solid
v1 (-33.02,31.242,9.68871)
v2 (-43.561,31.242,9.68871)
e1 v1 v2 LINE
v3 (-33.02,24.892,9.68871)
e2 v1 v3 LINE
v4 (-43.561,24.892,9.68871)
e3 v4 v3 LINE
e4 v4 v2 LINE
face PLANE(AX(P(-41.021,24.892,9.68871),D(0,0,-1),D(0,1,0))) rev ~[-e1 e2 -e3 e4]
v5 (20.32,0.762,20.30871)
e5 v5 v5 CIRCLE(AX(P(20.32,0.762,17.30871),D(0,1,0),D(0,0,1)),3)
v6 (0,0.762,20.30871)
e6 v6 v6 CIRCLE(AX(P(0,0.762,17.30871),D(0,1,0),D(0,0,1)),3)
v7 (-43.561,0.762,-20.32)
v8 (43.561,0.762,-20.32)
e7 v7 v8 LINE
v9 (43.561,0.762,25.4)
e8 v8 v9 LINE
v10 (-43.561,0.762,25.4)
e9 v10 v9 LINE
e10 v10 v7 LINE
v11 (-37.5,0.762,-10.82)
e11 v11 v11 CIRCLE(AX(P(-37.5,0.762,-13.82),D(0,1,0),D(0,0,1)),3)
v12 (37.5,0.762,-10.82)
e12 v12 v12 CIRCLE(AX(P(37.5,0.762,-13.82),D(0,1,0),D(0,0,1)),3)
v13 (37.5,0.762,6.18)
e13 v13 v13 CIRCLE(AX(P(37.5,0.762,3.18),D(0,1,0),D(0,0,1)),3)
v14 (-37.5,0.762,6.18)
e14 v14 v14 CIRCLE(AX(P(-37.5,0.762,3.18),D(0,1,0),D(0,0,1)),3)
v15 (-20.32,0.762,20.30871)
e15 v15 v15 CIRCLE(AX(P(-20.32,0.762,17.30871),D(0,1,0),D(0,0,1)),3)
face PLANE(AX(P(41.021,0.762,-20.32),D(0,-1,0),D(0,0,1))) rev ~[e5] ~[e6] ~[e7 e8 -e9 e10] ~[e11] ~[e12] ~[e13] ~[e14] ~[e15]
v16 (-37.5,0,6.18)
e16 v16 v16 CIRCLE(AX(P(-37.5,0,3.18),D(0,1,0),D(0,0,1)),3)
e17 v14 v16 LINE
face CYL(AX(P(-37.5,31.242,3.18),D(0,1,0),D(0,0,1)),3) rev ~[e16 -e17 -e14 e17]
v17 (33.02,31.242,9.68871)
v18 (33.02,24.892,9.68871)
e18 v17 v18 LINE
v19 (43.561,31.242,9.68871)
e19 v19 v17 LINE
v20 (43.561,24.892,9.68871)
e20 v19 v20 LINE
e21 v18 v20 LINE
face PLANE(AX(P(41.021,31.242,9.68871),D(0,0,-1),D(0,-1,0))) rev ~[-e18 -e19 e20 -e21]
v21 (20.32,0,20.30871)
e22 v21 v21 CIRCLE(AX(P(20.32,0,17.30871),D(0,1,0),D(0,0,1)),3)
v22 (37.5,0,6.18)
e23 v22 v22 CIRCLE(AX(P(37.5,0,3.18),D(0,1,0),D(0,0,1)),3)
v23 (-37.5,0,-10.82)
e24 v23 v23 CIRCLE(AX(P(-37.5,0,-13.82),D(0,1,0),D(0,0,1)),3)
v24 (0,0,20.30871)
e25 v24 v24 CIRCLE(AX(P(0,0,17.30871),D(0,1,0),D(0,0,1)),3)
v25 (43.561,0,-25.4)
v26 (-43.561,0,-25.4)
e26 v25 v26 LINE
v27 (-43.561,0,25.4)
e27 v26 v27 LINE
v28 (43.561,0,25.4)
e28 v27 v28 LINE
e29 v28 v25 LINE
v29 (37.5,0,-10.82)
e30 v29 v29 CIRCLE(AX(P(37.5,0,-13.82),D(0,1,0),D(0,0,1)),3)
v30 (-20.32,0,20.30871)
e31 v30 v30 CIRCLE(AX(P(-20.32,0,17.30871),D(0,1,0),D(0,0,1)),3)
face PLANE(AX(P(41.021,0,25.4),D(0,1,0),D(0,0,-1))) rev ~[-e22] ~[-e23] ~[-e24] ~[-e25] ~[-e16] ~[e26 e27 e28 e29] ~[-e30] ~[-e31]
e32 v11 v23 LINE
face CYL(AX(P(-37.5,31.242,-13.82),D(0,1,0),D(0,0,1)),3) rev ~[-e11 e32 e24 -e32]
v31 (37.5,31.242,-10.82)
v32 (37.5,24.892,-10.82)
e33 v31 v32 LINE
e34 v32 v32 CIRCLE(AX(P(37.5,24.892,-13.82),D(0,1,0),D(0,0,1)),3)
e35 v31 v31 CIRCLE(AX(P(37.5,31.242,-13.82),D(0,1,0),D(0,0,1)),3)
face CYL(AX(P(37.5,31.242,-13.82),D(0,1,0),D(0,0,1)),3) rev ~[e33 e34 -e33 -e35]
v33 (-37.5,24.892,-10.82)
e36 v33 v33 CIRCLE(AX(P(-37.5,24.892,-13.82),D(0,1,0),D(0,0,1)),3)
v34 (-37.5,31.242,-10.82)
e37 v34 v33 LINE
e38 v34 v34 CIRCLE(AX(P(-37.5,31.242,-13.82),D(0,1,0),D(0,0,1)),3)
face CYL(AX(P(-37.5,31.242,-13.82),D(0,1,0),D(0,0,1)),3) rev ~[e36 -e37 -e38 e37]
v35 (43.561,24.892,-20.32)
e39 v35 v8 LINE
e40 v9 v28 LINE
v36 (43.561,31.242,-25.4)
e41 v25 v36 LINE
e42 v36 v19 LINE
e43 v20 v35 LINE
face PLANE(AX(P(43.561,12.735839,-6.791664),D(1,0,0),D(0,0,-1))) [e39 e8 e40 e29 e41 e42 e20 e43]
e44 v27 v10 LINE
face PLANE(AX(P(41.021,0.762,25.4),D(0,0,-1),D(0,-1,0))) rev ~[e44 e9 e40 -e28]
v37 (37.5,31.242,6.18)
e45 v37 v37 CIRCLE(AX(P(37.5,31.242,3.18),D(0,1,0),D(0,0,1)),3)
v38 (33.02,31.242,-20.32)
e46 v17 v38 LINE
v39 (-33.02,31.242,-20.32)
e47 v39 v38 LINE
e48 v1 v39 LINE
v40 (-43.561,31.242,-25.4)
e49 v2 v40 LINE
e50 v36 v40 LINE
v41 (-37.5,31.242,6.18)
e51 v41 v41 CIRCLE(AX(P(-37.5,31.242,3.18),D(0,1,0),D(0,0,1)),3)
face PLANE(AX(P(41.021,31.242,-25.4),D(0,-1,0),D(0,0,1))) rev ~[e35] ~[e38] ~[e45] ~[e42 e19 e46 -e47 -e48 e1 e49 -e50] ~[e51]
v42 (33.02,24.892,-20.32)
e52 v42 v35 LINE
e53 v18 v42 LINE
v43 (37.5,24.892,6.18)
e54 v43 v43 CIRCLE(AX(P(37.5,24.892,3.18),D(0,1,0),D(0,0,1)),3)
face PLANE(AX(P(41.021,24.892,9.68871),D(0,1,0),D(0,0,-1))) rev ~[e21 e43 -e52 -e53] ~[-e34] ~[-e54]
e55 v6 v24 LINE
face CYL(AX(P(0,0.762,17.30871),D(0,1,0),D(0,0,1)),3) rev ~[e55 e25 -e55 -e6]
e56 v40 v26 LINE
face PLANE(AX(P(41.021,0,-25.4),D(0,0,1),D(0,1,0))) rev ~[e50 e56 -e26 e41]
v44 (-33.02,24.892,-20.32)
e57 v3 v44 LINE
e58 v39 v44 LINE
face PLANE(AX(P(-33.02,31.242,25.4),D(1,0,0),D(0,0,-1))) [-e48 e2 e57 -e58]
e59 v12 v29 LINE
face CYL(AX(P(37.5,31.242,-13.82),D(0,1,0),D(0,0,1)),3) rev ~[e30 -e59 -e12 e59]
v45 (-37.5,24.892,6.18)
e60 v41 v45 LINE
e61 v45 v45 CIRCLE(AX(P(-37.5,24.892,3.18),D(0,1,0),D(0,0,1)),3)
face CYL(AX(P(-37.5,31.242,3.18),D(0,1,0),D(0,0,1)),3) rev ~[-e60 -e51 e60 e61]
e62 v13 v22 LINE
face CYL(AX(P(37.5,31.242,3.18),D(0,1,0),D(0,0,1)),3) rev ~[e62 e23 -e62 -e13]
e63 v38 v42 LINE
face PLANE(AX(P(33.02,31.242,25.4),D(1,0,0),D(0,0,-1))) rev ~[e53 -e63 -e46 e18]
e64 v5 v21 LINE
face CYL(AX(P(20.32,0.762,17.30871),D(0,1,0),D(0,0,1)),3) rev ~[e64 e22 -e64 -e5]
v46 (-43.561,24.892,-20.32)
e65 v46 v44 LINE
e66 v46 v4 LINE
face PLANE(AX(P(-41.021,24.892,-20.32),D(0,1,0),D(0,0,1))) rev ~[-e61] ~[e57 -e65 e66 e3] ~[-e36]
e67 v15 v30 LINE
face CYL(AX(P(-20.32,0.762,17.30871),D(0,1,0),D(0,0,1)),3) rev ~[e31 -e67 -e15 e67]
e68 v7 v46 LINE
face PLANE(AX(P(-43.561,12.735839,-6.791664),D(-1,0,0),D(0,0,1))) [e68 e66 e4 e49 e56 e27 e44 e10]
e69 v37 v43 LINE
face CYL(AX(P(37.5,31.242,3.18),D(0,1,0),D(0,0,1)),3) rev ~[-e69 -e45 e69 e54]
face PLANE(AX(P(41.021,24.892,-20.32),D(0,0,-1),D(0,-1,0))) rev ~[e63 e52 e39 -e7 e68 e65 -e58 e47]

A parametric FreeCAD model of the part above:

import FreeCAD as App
import Part
import Sketcher
Q = App.Units.Quantity


def add_polygon(sketch, points):
    """Adds a closed chain of lines whose ends are joined by coincident constraints."""
    first, n = sketch.GeometryCount, len(points)
    for a, b in zip(points, points[1:] + points[:1]):
        sketch.addGeometry(Part.LineSegment(App.Vector(*a, 0), App.Vector(*b, 0)), False)
    for i in range(n):
        sketch.addConstraint(Sketcher.Constraint("Coincident", first + i, 2, first + (i + 1) % n, 1))

doc = App.newDocument("Part")
body = doc.addObject("PartDesign::Body", "Body")

# Sketch on XZ plane
sketch1 = doc.addObject("Sketcher::SketchObject", "Sketch")
body.addObject(sketch1)
sketch1.AttachmentSupport = (doc.XZ_Plane, [""])
sketch1.MapMode = "FlatFace"
add_polygon(sketch1, [(-41, -25), (-41, 25), (41, 25), (41, -25)])  # lines 0-3
sketch1.addConstraint([
    Sketcher.Constraint("Vertical", 0),
    Sketcher.Constraint("Horizontal", 1),
    Sketcher.Constraint("Vertical", 2),
    Sketcher.Constraint("Horizontal", 3),
    Sketcher.Constraint("Symmetric", 0, 2, 2, 2, -1, 1),
    Sketcher.Constraint("DistanceY", 0, 1, 0, 2, Q("2 in")),
    Sketcher.Constraint("DistanceX", 1, 1, 1, 2, Q("3.23 in")),
])
pad1 = doc.addObject("PartDesign::Pad", "Pad")
body.addObject(pad1)
pad1.Profile = sketch1
pad1.Length = Q("1.23 in")
pad1.Reversed = True

# Sketch on XZ plane
sketch2 = doc.addObject("Sketcher::SketchObject", "Sketch001")
body.addObject(sketch2)
sketch2.AttachmentSupport = (doc.XZ_Plane, [""])
sketch2.MapMode = "FlatFace"
sketch2.AttachmentOffset = App.Placement(App.Vector(0, 0, -1.23 * 25.4), App.Rotation())
add_polygon(sketch2, [(-33, -20), (-33, 25), (33, 25), (33, -20)])  # lines 0-3
sketch2.addConstraint([
    Sketcher.Constraint("Vertical", 0),
    Sketcher.Constraint("Horizontal", 1),
    Sketcher.Constraint("Vertical", 2),
    Sketcher.Constraint("Horizontal", 3),
    Sketcher.Constraint("DistanceX", 1, 1, 1, 2, Q("2.6 in")),
    Sketcher.Constraint("DistanceY", 0, 1, 0, 2, Q("1.8 in")),
    Sketcher.Constraint("DistanceY", -1, 1, 0, 2, Q("1 in")),
    Sketcher.Constraint("DistanceX", 0, 2, -1, 1, Q("1.3 in")),
])
pocket1 = doc.addObject("PartDesign::Pocket", "Pocket")
body.addObject(pocket1)
pocket1.Profile = sketch2
pocket1.Length = Q("1.2 in")
pocket1.Reversed = True

# Sketch on XZ plane
sketch3 = doc.addObject("Sketcher::SketchObject", "Sketch002")
body.addObject(sketch3)
sketch3.AttachmentSupport = (doc.XZ_Plane, [""])
sketch3.MapMode = "FlatFace"
sketch3.AttachmentOffset = App.Placement(App.Vector(0, 0, -1.23 * 25.4), App.Rotation())
sketch3.addGeometry([
    Part.Circle(App.Vector(-37.5, -13.8, 0), App.Vector(0, 0, 1), 3),
    Part.Circle(App.Vector(-37.5, 3.2, 0), App.Vector(0, 0, 1), 3),
    Part.Circle(App.Vector(37.5, -13.8, 0), App.Vector(0, 0, 1), 3),
    Part.Circle(App.Vector(37.5, 3.2, 0), App.Vector(0, 0, 1), 3),
], False)
sketch3.addConstraint([
    Sketcher.Constraint("Equal", 0, 1),
    Sketcher.Constraint("Equal", 1, 2),
    Sketcher.Constraint("Equal", 2, 3),
    Sketcher.Constraint("Symmetric", 0, 3, 2, 3, -2),
    Sketcher.Constraint("Symmetric", 1, 3, 3, 3, -2),
    Sketcher.Constraint("Vertical", 0, 3, 1, 3),
    Sketcher.Constraint("Diameter", 0, 6.0),
    Sketcher.Constraint("DistanceX", 0, 3, -1, 1, 37.5),
    Sketcher.Constraint("DistanceY", 0, 3, -1, 1, 13.82),
    Sketcher.Constraint("DistanceY", -1, 1, 1, 3, 3.18),
])
pocket2 = doc.addObject("PartDesign::Pocket", "Pocket001")
body.addObject(pocket2)
pocket2.Profile = sketch3
pocket2.Type = "ThroughAll"
pocket2.Reversed = True

# Sketch on XZ plane
sketch4 = doc.addObject("Sketcher::SketchObject", "Sketch003")
body.addObject(sketch4)
sketch4.AttachmentSupport = (doc.XZ_Plane, [""])
sketch4.MapMode = "FlatFace"
sketch4.AttachmentOffset = App.Placement(App.Vector(0, 0, -1.23 * 25.4), App.Rotation())
add_polygon(sketch4, [(-41, 10), (-41, 25), (-33, 25), (-33, 10)])  # lines 0-3
add_polygon(sketch4, [(33, 10), (33, 25), (41, 25), (41, 10)])  # lines 4-7
sketch4.addConstraint([
    Sketcher.Constraint("Vertical", 0),
    Sketcher.Constraint("Horizontal", 1),
    Sketcher.Constraint("Vertical", 2),
    Sketcher.Constraint("Horizontal", 3),
    Sketcher.Constraint("Vertical", 4),
    Sketcher.Constraint("Horizontal", 5),
    Sketcher.Constraint("Vertical", 6),
    Sketcher.Constraint("Horizontal", 7),
    Sketcher.Constraint("Symmetric", 1, 2, 4, 2, -2),
    Sketcher.Constraint("Symmetric", 3, 2, 6, 2, -2),
    Sketcher.Constraint("DistanceY", -1, 1, 0, 2, Q("1 in")),
    Sketcher.Constraint("DistanceX", 1, 2, -1, 1, Q("1.3 in")),
    Sketcher.Constraint("DistanceX", 1, 1, 1, 2, Q("0.315 in")),
    Sketcher.Constraint("DistanceY", 0, 1, 0, 2, 15.71129),
])
pocket3 = doc.addObject("PartDesign::Pocket", "Pocket002")
body.addObject(pocket3)
pocket3.Profile = sketch4
pocket3.Length = Q("1.2 in")
pocket3.Reversed = True

# Sketch on XZ plane
sketch5 = doc.addObject("Sketcher::SketchObject", "Sketch004")
body.addObject(sketch5)
sketch5.AttachmentSupport = (doc.XZ_Plane, [""])
sketch5.MapMode = "FlatFace"
sketch5.AttachmentOffset = App.Placement(App.Vector(0, 0, -0.03 * 25.4), App.Rotation())
sketch5.addGeometry([
    Part.Circle(App.Vector(0, 17.3, 0), App.Vector(0, 0, 1), 3),
    Part.Circle(App.Vector(-20.3, 17.3, 0), App.Vector(0, 0, 1), 3),
    Part.Circle(App.Vector(20.3, 17.3, 0), App.Vector(0, 0, 1), 3),
], False)
sketch5.addConstraint([
    Sketcher.Constraint("Equal", 0, 1),
    Sketcher.Constraint("Equal", 1, 2),
    Sketcher.Constraint("Symmetric", 1, 3, 2, 3, -2),
    Sketcher.Constraint("PointOnObject", 0, 3, -2),
    Sketcher.Constraint("Horizontal", 0, 3, 1, 3),
    Sketcher.Constraint("DistanceX", 1, 3, -1, 1, Q("0.8 in")),
    Sketcher.Constraint("Diameter", 0, 6.0),
    Sketcher.Constraint("DistanceY", -1, 1, 0, 3, 17.30871),
])
pocket4 = doc.addObject("PartDesign::Pocket", "Pocket003")
body.addObject(pocket4)
pocket4.Profile = sketch5
pocket4.Type = "ThroughAll"
pocket4.Reversed = True

# Sketch on YZ plane
sketch6 = doc.addObject("Sketcher::SketchObject", "Sketch005")
body.addObject(sketch6)
sketch6.AttachmentSupport = (doc.YZ_Plane, [""])
sketch6.MapMode = "FlatFace"
sketch6.AttachmentOffset = App.Placement(App.Vector(0, 0, 1.615 * 25.4), App.Rotation())
add_polygon(sketch6, [(25, 10), (1, 10), (1, -20), (25, -20)])  # lines 0-3
sketch6.addConstraint([
    Sketcher.Constraint("Horizontal", 0),
    Sketcher.Constraint("Vertical", 1),
    Sketcher.Constraint("Horizontal", 2),
    Sketcher.Constraint("Vertical", 3),
    Sketcher.Constraint("DistanceX", 0, 2, 0, 1, Q("0.95 in")),
    Sketcher.Constraint("DistanceY", 1, 2, -1, 1, Q("0.8 in")),
    Sketcher.Constraint("DistanceX", -1, 1, 0, 2, Q("0.03 in")),
    Sketcher.Constraint("DistanceY", 1, 2, 1, 1, 30.00871),
])
pocket5 = doc.addObject("PartDesign::Pocket", "Pocket004")
body.addObject(pocket5)
pocket5.Profile = sketch6
pocket5.Type = "ThroughAll"

# Sketch on YZ plane
sketch7 = doc.addObject("Sketcher::SketchObject", "Sketch006")
body.addObject(sketch7)
sketch7.AttachmentSupport = (doc.YZ_Plane, [""])
sketch7.MapMode = "FlatFace"
sketch7.AttachmentOffset = App.Placement(App.Vector(0, 0, -1.615 * 25.4), App.Rotation())
add_polygon(sketch7, [(24.9, 9.7), (31.2, 9.7), (31.2, -25.4), (0, -25.4), (0, 25.4), (0.8, 25.4), (0.8, -20.3), (24.9, -20.3)])  # lines 0-7
sketch7.addConstraint([
    Sketcher.Constraint("Horizontal", 0),
    Sketcher.Constraint("Vertical", 1),
    Sketcher.Constraint("Horizontal", 2),
    Sketcher.Constraint("Vertical", 3),
    Sketcher.Constraint("Horizontal", 4),
    Sketcher.Constraint("Vertical", 5),
    Sketcher.Constraint("Horizontal", 6),
    Sketcher.Constraint("Vertical", 7),
    Sketcher.Constraint("Symmetric", 2, 2, 3, 2, -1, 1),
    Sketcher.Constraint("DistanceY", 3, 1, 3, 2, Q("2 in")),
    Sketcher.Constraint("DistanceY", 5, 2, 5, 1, Q("1.8 in")),
    Sketcher.Constraint("DistanceX", 0, 1, 0, 2, Q("0.25 in")),
    Sketcher.Constraint("DistanceX", 2, 2, 2, 1, Q("1.23 in")),
    Sketcher.Constraint("DistanceX", 4, 1, 4, 2, Q("0.03 in")),
    Sketcher.Constraint("DistanceY", 1, 2, 1, 1, 35.08871),
])
pad2 = doc.addObject("PartDesign::Pad", "Pad001")
body.addObject(pad2)
pad2.Profile = sketch7
pad2.Length = Q("0.1 in")
pad2.Reversed = True

# Sketch on YZ plane
sketch8 = doc.addObject("Sketcher::SketchObject", "Sketch007")
body.addObject(sketch8)
sketch8.AttachmentSupport = (doc.YZ_Plane, [""])
sketch8.MapMode = "FlatFace"
sketch8.AttachmentOffset = App.Placement(App.Vector(0, 0, 1.615 * 25.4), App.Rotation())
add_polygon(sketch8, [(31.2, 9.7), (24.9, 9.7), (24.9, -20.3), (0.8, -20.3), (0.8, 25.4), (0, 25.4), (0, -25.4), (31.2, -25.4)])  # lines 0-7
sketch8.addConstraint([
    Sketcher.Constraint("Horizontal", 0),
    Sketcher.Constraint("Vertical", 1),
    Sketcher.Constraint("Horizontal", 2),
    Sketcher.Constraint("Vertical", 3),
    Sketcher.Constraint("Horizontal", 4),
    Sketcher.Constraint("Vertical", 5),
    Sketcher.Constraint("Horizontal", 6),
    Sketcher.Constraint("Vertical", 7),
    Sketcher.Constraint("Symmetric", 4, 2, 5, 2, -1, 1),
    Sketcher.Constraint("DistanceY", 5, 2, 5, 1, Q("2 in")),
    Sketcher.Constraint("DistanceY", 3, 1, 3, 2, Q("1.8 in")),
    Sketcher.Constraint("DistanceX", 0, 2, 0, 1, Q("0.25 in")),
    Sketcher.Constraint("DistanceX", 2, 2, 2, 1, Q("0.95 in")),
    Sketcher.Constraint("DistanceX", 4, 2, 4, 1, Q("0.03 in")),
    Sketcher.Constraint("DistanceY", 1, 2, 1, 1, 30.00871),
])
pad3 = doc.addObject("PartDesign::Pad", "Pad002")
body.addObject(pad3)
pad3.Profile = sketch8
pad3.Length = Q("0.1 in")

doc.recompute()
